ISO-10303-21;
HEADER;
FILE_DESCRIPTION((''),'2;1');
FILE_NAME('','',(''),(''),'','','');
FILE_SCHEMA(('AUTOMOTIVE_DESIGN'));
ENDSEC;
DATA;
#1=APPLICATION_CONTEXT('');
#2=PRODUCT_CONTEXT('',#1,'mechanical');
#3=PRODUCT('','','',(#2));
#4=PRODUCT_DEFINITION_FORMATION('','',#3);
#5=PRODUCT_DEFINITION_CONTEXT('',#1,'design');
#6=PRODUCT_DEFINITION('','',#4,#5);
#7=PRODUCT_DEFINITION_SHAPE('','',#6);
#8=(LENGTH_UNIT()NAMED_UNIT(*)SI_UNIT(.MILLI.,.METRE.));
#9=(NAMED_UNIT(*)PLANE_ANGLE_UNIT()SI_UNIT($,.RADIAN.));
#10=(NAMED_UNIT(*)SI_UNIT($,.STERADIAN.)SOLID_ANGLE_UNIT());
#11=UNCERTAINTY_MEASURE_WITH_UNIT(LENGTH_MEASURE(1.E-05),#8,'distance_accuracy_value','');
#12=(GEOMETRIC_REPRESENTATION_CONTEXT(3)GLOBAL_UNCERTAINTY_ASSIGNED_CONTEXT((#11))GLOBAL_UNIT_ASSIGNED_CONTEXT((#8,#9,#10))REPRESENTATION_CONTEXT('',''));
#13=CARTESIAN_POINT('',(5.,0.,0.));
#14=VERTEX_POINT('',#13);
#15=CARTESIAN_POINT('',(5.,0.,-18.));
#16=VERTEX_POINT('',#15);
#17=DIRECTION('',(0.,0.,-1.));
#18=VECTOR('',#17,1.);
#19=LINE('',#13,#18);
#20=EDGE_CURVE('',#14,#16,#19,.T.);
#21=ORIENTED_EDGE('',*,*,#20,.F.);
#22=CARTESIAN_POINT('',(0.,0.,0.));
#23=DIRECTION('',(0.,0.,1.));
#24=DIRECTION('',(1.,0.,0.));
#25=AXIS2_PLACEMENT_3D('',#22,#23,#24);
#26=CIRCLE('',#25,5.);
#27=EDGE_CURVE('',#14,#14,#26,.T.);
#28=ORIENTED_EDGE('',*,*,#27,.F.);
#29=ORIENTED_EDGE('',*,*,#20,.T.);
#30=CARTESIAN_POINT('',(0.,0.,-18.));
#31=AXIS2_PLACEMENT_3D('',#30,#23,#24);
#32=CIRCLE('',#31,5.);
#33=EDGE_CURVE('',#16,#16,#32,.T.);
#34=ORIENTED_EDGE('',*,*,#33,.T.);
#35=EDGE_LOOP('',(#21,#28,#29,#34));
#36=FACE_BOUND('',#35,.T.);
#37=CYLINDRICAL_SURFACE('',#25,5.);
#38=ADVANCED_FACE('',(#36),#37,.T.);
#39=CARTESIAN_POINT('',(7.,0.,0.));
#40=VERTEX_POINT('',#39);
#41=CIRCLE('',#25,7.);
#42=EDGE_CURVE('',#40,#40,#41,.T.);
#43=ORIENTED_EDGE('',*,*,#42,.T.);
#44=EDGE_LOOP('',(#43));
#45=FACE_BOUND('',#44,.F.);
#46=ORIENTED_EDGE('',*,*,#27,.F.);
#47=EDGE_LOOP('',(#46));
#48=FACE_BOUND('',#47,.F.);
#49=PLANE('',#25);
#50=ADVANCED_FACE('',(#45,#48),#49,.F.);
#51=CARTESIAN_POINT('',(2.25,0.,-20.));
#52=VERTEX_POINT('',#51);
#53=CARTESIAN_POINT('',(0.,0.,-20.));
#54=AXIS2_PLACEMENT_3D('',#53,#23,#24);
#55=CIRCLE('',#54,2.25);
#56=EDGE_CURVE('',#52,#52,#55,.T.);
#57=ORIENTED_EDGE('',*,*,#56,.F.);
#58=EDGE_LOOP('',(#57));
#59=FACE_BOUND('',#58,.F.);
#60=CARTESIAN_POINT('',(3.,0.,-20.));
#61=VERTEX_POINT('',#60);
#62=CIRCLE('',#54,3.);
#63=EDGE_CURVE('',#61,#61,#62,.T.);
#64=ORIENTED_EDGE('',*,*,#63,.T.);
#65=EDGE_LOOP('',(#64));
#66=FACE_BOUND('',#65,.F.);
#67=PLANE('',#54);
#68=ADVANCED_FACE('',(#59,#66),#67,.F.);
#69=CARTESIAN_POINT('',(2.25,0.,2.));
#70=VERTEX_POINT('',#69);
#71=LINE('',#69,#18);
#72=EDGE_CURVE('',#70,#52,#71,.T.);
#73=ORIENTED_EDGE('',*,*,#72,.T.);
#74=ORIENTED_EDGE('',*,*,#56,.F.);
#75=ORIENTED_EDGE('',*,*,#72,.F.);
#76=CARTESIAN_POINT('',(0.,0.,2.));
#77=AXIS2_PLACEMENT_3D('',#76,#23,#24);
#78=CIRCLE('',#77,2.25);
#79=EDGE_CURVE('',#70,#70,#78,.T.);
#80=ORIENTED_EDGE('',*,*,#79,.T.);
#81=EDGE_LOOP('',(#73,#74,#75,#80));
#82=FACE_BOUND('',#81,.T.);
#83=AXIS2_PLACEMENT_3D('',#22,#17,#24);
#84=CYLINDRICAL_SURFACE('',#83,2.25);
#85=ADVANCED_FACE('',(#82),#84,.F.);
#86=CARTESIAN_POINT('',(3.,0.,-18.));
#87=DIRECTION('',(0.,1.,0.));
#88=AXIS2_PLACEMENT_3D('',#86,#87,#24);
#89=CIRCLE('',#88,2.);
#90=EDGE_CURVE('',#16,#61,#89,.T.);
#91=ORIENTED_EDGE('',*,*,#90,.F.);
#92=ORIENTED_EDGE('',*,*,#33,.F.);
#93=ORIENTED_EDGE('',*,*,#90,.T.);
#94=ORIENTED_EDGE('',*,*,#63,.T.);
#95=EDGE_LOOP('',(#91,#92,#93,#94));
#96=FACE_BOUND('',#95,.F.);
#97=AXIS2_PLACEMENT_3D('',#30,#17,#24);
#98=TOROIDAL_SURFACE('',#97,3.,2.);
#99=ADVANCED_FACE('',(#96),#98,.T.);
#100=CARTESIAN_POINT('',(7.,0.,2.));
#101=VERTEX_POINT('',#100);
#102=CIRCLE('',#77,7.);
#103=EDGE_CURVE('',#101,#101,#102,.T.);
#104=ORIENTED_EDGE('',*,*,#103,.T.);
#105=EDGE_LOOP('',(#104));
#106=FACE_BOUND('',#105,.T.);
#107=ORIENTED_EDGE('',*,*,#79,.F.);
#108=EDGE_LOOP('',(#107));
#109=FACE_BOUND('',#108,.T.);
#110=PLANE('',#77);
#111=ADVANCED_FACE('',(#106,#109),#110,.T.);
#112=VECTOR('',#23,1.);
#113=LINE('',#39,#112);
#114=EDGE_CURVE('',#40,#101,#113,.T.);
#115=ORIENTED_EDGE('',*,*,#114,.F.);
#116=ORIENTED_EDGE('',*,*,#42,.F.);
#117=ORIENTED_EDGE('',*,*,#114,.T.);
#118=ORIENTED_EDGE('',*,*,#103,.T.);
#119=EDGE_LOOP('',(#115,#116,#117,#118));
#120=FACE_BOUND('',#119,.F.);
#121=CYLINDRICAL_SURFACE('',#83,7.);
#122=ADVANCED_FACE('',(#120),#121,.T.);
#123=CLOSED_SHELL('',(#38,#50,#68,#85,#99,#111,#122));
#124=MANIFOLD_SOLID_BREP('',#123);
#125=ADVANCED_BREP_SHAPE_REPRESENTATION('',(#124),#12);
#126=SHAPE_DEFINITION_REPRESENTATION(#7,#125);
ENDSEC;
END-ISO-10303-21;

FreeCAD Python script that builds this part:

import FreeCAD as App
import Part
import Sketcher

V = App.Vector
Q = App.Units.Quantity


def edges_at(feature, points):
    """Names of the edges that pass closest to the given points."""
    edges = feature.Shape.Edges
    near = lambda p: min(range(len(edges)), key=lambda i: edges[i].distToShape(Part.Vertex(*p))[0])
    return sorted({f"Edge{near(p) + 1}" for p in points})

doc = App.newDocument("Part")
body = doc.addObject("PartDesign::Body", "Body")

# Sketch on XY plane
sketch1 = body.newObject("Sketcher::SketchObject", "Sketch")
sketch1.AttachmentSupport = (doc.getObject("XY_Plane"), [""])
sketch1.MapMode = "FlatFace"
sketch1.addGeometry(Part.Circle(V(0, 0, 0), V(0, 0, 1), 5), False)
sketch1.addGeometry(Part.Circle(V(0, 0, 0), V(0, 0, 1), 2.25), False)
sketch1.addConstraint(Sketcher.Constraint("Coincident", 0, 3, -1, 1))
sketch1.addConstraint(Sketcher.Constraint("Coincident", 1, 3, -1, 1))
sketch1.addConstraint(Sketcher.Constraint("Diameter", 0, Q("10 mm")))
sketch1.addConstraint(Sketcher.Constraint("Diameter", 1, Q("4.5 mm")))
pad1 = body.newObject("PartDesign::Pad", "Pad")
pad1.Profile = sketch1
pad1.Length = 20
pad1.Reversed = True
doc.recompute()

fillet = body.newObject("PartDesign::Fillet", "Fillet")
fillet.Base = (pad1, edges_at(pad1, [(-5, 0, -20)]))
fillet.Radius = 2

# Sketch on XY plane
sketch2 = body.newObject("Sketcher::SketchObject", "Sketch001")
sketch2.AttachmentSupport = (doc.getObject("XY_Plane"), [""])
sketch2.MapMode = "FlatFace"
sketch2.addGeometry(Part.Circle(V(0, 0, 0), V(0, 0, 1), 7), False)
sketch2.addGeometry(Part.Circle(V(0, 0, 0), V(0, 0, 1), 2.25), False)
sketch2.addConstraint(Sketcher.Constraint("Coincident", 0, 3, -1, 1))
sketch2.addConstraint(Sketcher.Constraint("Coincident", 1, 3, -1, 1))
sketch2.addConstraint(Sketcher.Constraint("Diameter", 0, Q("14 mm")))
sketch2.addConstraint(Sketcher.Constraint("Diameter", 1, Q("4.5 mm")))
pad2 = body.newObject("PartDesign::Pad", "Pad001")
pad2.Profile = sketch2
pad2.Length = 2

doc.recompute()
